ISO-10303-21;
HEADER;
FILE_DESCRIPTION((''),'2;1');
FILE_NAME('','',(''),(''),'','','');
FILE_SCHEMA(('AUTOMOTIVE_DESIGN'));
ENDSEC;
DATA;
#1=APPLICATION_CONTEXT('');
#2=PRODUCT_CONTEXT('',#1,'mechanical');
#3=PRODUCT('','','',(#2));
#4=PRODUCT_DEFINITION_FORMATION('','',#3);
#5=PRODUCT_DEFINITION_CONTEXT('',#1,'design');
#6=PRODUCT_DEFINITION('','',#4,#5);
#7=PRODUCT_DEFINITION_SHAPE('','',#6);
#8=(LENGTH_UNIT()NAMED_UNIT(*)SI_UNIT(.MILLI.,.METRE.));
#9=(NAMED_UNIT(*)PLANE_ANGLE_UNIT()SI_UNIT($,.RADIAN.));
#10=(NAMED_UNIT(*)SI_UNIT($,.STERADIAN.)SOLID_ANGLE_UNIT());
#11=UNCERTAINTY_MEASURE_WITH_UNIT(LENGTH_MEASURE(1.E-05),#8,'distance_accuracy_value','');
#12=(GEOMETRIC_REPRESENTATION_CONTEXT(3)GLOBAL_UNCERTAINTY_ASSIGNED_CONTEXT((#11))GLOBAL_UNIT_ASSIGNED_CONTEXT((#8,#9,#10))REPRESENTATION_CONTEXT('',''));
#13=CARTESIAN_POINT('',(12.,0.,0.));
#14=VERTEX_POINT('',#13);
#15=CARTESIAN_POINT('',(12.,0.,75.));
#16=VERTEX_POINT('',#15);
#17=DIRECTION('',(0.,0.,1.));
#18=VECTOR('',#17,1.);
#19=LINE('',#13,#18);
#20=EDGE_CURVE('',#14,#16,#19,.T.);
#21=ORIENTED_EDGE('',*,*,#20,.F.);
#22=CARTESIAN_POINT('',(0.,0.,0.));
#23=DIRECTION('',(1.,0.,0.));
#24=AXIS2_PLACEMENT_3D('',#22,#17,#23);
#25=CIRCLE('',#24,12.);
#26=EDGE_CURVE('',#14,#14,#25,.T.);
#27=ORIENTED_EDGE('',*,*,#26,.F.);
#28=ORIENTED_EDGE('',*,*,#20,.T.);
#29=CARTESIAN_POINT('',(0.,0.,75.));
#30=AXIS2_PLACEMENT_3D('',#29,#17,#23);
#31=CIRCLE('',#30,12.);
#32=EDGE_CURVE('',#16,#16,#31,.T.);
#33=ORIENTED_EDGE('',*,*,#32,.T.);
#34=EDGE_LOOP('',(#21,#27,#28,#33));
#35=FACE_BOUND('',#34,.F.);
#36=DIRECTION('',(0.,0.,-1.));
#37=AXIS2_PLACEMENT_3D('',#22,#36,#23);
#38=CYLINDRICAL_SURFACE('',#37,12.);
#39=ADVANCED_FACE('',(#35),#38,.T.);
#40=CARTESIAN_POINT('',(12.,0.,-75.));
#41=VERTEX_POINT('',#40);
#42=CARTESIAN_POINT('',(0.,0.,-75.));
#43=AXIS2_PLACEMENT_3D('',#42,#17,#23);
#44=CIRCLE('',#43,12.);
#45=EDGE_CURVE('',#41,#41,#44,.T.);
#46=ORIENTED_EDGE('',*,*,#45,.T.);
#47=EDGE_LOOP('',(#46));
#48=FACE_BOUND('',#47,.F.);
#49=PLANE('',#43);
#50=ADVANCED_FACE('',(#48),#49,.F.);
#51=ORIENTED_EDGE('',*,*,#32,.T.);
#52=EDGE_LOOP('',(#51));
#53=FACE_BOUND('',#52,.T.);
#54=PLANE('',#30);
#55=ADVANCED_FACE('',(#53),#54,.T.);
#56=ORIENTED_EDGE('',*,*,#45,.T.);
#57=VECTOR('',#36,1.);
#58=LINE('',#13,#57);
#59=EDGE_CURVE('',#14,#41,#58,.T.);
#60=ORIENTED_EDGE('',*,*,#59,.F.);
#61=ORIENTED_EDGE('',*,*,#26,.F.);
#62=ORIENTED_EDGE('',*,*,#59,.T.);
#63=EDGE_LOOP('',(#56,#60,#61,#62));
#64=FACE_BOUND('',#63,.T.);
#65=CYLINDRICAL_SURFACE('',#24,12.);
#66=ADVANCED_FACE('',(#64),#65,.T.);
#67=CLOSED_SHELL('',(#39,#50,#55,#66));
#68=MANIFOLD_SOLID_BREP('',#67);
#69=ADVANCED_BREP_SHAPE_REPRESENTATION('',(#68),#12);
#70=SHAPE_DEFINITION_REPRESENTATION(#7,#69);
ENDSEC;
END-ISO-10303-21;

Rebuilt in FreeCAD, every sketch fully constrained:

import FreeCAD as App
import Part
import Sketcher

doc = App.newDocument("Part")
body = doc.addObject("PartDesign::Body", "Body")

sketch1 = body.newObject("Sketcher::SketchObject", "Sketch")
sketch1.AttachmentSupport = (doc.getObject("XY_Plane"), [""])
sketch1.MapMode = "FlatFace"
sketch1.addGeometry(Part.Circle(App.Vector(0, 0, 0), App.Vector(0, 0, 1), 12), False)
sketch1.addConstraint([
    Sketcher.Constraint("Coincident", 0, 3, -1, 1),
    Sketcher.Constraint("Diameter", 0, 24.0),
])
pad1 = body.newObject("PartDesign::Pad", "Pad")
pad1.Profile = sketch1
pad1.Length = 150
pad1.Midplane = True

doc.recompute()
